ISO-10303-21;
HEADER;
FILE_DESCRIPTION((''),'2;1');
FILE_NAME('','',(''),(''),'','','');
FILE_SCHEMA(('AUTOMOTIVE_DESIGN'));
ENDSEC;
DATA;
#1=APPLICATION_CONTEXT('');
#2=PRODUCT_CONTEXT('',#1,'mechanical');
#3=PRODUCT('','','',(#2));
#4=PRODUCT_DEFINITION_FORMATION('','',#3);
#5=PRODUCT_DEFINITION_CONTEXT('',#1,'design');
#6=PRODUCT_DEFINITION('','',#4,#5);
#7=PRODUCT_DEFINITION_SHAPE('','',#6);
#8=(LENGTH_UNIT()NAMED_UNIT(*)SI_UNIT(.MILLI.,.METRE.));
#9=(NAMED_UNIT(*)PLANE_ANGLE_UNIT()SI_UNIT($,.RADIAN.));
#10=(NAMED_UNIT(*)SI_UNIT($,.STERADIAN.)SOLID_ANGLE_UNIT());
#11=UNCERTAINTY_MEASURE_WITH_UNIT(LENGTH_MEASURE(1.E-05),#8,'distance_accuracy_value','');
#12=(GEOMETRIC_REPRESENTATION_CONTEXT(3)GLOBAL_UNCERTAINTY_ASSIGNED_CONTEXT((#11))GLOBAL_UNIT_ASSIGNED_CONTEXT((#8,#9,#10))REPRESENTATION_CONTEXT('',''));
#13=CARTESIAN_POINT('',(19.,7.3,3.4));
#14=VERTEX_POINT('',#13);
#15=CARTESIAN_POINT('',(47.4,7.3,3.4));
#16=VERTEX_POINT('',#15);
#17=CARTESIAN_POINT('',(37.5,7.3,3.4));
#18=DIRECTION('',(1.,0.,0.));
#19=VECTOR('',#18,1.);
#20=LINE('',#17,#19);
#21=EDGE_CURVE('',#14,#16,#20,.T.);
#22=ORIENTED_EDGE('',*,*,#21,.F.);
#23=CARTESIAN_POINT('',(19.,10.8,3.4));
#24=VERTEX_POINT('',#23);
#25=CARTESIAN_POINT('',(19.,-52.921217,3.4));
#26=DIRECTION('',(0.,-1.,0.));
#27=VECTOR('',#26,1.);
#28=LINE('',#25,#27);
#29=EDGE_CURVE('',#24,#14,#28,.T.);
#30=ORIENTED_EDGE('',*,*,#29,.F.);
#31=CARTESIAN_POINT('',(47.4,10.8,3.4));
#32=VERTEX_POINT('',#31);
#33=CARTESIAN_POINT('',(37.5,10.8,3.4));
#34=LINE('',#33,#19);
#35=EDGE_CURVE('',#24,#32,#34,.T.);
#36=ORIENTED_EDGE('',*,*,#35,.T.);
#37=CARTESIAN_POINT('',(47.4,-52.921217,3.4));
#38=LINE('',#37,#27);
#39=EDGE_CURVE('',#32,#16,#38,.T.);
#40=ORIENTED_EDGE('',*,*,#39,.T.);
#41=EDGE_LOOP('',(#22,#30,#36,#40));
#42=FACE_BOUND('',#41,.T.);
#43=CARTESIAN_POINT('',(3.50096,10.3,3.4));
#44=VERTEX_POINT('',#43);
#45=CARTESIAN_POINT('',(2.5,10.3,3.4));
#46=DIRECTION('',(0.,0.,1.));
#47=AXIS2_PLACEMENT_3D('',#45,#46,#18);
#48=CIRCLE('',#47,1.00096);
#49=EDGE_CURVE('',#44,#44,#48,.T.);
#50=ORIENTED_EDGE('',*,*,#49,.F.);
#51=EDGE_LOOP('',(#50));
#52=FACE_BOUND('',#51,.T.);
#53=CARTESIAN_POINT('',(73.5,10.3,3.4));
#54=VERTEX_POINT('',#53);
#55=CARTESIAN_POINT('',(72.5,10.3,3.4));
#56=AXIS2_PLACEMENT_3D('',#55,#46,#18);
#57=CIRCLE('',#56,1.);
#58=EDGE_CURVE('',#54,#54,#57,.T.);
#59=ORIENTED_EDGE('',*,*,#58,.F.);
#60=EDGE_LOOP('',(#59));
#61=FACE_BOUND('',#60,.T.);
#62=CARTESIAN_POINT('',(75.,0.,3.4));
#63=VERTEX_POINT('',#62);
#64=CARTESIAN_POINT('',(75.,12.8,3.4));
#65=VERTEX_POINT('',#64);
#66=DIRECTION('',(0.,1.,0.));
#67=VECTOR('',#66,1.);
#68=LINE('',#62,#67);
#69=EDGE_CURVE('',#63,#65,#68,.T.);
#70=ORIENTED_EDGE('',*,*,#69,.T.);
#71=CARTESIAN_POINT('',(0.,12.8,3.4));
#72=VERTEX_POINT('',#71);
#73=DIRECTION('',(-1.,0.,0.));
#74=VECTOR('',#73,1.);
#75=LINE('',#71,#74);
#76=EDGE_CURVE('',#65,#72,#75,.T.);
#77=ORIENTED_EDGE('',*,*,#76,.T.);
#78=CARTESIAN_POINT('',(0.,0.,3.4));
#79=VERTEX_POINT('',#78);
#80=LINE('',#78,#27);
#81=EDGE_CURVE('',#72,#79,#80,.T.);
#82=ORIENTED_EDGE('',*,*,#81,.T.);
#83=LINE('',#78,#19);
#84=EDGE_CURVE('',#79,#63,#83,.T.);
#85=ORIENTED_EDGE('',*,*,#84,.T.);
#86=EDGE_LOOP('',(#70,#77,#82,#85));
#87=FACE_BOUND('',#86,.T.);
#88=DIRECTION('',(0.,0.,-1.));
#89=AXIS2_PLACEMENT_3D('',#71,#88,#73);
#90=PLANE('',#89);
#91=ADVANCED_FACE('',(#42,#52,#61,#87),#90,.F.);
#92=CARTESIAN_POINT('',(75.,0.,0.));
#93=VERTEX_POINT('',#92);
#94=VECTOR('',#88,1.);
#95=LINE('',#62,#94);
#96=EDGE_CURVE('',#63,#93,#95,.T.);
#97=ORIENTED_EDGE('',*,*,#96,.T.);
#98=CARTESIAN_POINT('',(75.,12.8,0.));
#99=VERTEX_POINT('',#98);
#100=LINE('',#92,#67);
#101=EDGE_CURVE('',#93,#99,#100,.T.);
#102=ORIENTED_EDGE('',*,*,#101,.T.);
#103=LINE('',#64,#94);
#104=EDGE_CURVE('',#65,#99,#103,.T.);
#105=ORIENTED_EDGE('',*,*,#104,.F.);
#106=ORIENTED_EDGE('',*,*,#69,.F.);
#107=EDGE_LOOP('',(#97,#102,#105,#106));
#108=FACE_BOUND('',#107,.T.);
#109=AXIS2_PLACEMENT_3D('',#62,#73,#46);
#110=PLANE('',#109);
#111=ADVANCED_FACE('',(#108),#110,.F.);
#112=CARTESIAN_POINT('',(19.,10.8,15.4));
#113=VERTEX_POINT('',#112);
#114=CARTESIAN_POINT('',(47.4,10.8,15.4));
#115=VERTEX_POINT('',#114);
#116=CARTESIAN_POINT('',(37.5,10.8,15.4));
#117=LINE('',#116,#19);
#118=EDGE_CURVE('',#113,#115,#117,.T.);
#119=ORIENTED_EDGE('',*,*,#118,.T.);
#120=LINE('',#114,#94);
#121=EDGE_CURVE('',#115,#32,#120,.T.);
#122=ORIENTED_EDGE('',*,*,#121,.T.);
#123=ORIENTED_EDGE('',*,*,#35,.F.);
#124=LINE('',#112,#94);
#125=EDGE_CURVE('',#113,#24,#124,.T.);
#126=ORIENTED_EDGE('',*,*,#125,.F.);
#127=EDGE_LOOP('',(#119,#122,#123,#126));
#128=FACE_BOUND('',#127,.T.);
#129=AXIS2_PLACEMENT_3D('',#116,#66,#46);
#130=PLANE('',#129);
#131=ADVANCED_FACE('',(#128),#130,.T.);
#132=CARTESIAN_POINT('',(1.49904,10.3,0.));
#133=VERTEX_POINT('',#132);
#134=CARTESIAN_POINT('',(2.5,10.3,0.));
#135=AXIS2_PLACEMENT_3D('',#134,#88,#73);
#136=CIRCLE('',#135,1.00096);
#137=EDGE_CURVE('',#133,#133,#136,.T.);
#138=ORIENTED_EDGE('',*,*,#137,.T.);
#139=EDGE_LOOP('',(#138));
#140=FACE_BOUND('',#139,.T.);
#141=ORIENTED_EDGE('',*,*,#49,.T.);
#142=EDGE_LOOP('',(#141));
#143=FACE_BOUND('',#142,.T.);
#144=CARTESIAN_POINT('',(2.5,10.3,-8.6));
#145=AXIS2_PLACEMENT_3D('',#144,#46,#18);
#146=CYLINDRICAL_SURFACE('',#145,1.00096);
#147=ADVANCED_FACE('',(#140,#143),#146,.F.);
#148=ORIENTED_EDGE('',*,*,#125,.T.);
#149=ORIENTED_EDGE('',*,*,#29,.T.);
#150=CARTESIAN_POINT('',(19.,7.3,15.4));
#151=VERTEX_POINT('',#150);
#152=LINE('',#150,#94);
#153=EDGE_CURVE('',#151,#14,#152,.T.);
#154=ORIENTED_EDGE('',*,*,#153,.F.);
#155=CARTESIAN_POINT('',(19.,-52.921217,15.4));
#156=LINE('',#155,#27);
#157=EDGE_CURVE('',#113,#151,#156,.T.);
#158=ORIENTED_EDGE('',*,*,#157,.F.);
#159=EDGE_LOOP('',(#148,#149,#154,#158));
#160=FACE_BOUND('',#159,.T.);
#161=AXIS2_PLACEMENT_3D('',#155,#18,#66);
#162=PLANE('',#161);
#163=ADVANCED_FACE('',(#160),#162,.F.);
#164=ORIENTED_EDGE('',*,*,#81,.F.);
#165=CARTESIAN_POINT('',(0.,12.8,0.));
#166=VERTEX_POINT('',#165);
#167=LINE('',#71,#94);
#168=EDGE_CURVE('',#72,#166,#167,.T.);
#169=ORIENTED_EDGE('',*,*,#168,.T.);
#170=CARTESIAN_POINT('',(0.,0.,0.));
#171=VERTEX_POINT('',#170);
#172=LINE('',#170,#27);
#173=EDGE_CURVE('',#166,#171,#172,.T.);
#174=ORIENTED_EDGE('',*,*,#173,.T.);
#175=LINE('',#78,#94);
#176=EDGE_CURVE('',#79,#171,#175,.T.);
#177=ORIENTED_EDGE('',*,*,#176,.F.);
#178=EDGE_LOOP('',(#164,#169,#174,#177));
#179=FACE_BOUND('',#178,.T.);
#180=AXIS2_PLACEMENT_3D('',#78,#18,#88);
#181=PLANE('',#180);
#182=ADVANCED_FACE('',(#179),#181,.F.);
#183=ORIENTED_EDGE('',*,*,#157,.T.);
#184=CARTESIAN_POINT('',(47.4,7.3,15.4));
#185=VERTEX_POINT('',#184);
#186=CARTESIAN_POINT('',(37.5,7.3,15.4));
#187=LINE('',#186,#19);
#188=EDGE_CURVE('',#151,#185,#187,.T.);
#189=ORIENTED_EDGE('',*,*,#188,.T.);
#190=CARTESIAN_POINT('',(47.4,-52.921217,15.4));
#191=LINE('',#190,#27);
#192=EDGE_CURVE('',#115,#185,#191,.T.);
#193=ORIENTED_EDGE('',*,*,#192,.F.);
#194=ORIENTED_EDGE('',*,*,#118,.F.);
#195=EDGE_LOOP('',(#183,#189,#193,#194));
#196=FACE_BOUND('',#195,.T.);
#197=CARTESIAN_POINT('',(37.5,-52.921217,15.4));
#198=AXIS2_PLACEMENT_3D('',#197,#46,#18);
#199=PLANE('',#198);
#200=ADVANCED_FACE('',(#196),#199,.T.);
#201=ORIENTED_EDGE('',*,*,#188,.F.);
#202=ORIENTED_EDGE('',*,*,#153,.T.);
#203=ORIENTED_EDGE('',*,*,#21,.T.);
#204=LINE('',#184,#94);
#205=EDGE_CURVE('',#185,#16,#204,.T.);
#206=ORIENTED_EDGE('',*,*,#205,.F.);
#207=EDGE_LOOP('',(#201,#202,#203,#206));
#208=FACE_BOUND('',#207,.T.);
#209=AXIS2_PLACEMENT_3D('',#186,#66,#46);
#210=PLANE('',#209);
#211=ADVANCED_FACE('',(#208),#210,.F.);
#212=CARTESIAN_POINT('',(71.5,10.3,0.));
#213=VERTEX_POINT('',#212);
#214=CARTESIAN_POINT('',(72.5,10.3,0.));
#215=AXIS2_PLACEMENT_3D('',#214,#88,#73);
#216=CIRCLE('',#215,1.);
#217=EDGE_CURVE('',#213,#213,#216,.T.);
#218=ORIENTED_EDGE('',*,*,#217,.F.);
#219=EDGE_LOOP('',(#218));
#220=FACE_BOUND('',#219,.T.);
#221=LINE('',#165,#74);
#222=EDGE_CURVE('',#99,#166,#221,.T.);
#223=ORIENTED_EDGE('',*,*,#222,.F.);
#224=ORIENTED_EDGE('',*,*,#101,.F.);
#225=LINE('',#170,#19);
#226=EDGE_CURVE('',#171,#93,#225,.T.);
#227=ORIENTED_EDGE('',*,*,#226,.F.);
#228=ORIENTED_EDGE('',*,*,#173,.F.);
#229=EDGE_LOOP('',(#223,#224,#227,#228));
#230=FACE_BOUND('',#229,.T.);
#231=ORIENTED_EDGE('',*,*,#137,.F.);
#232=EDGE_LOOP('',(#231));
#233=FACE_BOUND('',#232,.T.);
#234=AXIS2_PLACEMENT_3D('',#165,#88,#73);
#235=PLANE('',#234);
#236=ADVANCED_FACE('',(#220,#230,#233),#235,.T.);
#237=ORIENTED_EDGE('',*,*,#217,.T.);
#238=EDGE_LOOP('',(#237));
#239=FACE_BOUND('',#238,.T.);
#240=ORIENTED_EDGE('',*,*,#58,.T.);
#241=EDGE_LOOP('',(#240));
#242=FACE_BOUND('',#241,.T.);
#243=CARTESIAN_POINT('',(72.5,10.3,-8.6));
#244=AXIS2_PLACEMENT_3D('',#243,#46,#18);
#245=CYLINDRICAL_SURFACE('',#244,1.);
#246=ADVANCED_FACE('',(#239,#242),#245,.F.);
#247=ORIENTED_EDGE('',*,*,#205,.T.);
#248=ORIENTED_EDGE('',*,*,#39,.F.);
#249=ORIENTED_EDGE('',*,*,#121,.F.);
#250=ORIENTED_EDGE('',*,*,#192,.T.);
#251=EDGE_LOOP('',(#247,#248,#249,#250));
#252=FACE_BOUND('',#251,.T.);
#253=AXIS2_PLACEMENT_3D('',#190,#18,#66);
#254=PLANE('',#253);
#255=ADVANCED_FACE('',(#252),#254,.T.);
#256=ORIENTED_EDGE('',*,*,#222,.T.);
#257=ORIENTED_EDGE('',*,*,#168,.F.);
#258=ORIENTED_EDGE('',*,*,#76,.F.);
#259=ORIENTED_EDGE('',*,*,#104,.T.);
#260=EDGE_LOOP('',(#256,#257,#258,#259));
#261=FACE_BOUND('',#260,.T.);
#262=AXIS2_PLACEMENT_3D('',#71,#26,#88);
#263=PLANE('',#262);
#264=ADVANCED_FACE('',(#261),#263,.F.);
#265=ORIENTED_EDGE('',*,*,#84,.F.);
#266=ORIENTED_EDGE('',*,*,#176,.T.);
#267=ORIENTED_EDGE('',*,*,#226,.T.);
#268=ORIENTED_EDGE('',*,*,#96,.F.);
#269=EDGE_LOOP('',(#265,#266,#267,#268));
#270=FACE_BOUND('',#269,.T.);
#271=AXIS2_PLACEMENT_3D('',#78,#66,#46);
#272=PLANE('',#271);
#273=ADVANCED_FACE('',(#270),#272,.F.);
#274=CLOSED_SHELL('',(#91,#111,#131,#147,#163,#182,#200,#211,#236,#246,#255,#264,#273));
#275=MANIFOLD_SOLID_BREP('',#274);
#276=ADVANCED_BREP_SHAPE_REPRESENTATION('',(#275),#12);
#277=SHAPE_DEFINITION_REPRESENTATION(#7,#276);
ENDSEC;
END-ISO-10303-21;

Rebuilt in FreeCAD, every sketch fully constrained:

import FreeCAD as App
import Part
import Sketcher

V = App.Vector

doc = App.newDocument("Part")
params = doc.addObject("Spreadsheet::Sheet", "Params")
for row, (alias, value) in enumerate([
    ("sketch1_width", "75 mm"),
    ("sketch1_height", "12.8 mm"),
    ("pad1_length", "3.4 mm"),
    ("sketch2_width", "28.4 mm"),
    ("sketch2_height", "3.5 mm"),
    ("pad2_length", "12 mm"),
    ("sketch3_diameter", "2 mm"),
    ("pocket1_length", "12 mm"),
], start=1):
    params.set(f"A{row}", alias)
    params.set(f"B{row}", "=" + value)
    params.setAlias(f"B{row}", alias)

body = doc.addObject("PartDesign::Body", "Body")

# Sketch on XY plane
sketch1 = body.newObject("Sketcher::SketchObject", "Sketch")
sketch1.AttachmentSupport = (doc.getObject("XY_Plane"), [""])
sketch1.MapMode = "FlatFace"
sketch1.addGeometry(Part.LineSegment(V(0, 12.8, 0), V(0, 0, 0)), False)
sketch1.addGeometry(Part.LineSegment(V(0, 0, 0), V(75, 0, 0)), False)
sketch1.addGeometry(Part.LineSegment(V(75, 0, 0), V(75, 12.8, 0)), False)
sketch1.addGeometry(Part.LineSegment(V(75, 12.8, 0), V(0, 12.8, 0)), False)
sketch1.addConstraint(Sketcher.Constraint("Coincident", 0, 2, 1, 1))
sketch1.addConstraint(Sketcher.Constraint("Coincident", 1, 2, 2, 1))
sketch1.addConstraint(Sketcher.Constraint("Coincident", 2, 2, 3, 1))
sketch1.addConstraint(Sketcher.Constraint("Coincident", 3, 2, 0, 1))
sketch1.addConstraint(Sketcher.Constraint("Vertical", 0))
sketch1.addConstraint(Sketcher.Constraint("Horizontal", 1))
sketch1.addConstraint(Sketcher.Constraint("Vertical", 2))
sketch1.addConstraint(Sketcher.Constraint("Horizontal", 3))
sketch1.addConstraint(Sketcher.Constraint("Coincident", 0, 2, -1, 1))
sketch1.addConstraint(Sketcher.Constraint("DistanceX", 1, 1, 1, 2, 75.0))
sketch1.addConstraint(Sketcher.Constraint("DistanceY", 0, 2, 0, 1, 12.8))
sketch1.setExpression("Constraints[9]", "Params.sketch1_width")
sketch1.setExpression("Constraints[10]", "Params.sketch1_height")
pad1 = body.newObject("PartDesign::Pad", "Pad")
pad1.Profile = sketch1
pad1.setExpression("Length", "Params.pad1_length")

# Sketch on XY plane
sketch2 = body.newObject("Sketcher::SketchObject", "Sketch001")
sketch2.AttachmentSupport = (doc.getObject("XY_Plane"), [""])
sketch2.MapMode = "FlatFace"
sketch2.AttachmentOffset = App.Placement(V(0, 0, 3.4), App.Rotation())
sketch2.addGeometry(Part.LineSegment(V(19, 10.8, 0), V(19, 7.3, 0)), False)
sketch2.addGeometry(Part.LineSegment(V(19, 7.3, 0), V(47.4, 7.3, 0)), False)
sketch2.addGeometry(Part.LineSegment(V(47.4, 7.3, 0), V(47.4, 10.8, 0)), False)
sketch2.addGeometry(Part.LineSegment(V(47.4, 10.8, 0), V(19, 10.8, 0)), False)
sketch2.addConstraint(Sketcher.Constraint("Coincident", 0, 2, 1, 1))
sketch2.addConstraint(Sketcher.Constraint("Coincident", 1, 2, 2, 1))
sketch2.addConstraint(Sketcher.Constraint("Coincident", 2, 2, 3, 1))
sketch2.addConstraint(Sketcher.Constraint("Coincident", 3, 2, 0, 1))
sketch2.addConstraint(Sketcher.Constraint("Vertical", 0))
sketch2.addConstraint(Sketcher.Constraint("Horizontal", 1))
sketch2.addConstraint(Sketcher.Constraint("Vertical", 2))
sketch2.addConstraint(Sketcher.Constraint("Horizontal", 3))
sketch2.addConstraint(Sketcher.Constraint("DistanceX", 1, 1, 1, 2, 28.4))
sketch2.addConstraint(Sketcher.Constraint("DistanceY", 0, 2, 0, 1, 3.5))
sketch2.addConstraint(Sketcher.Constraint("DistanceX", -1, 1, 0, 2, 19.0))
sketch2.addConstraint(Sketcher.Constraint("DistanceY", -1, 1, 0, 2, 7.3))
sketch2.setExpression("Constraints[8]", "Params.sketch2_width")
sketch2.setExpression("Constraints[9]", "Params.sketch2_height")
pad2 = body.newObject("PartDesign::Pad", "Pad001")
pad2.Profile = sketch2
pad2.setExpression("Length", "Params.pad2_length")

# Sketch on XY plane
sketch3 = body.newObject("Sketcher::SketchObject", "Sketch002")
sketch3.AttachmentSupport = (doc.getObject("XY_Plane"), [""])
sketch3.MapMode = "FlatFace"
sketch3.AttachmentOffset = App.Placement(V(0, 0, 3.4), App.Rotation())
sketch3.addGeometry(Part.Circle(V(72.5, 10.3, 0), V(0, 0, 1), 1), False)
sketch3.addGeometry(Part.Circle(V(2.5, 10.3, 0), V(0, 0, 1), 1.00096), False)
sketch3.addConstraint(Sketcher.Constraint("Horizontal", 0, 3, 1, 3))
sketch3.addConstraint(Sketcher.Constraint("Diameter", 0, 2.0))
sketch3.addConstraint(Sketcher.Constraint("DistanceX", 1, 3, 0, 3, 70.0))
sketch3.addConstraint(Sketcher.Constraint("DistanceX", -1, 1, 0, 3, 72.5))
sketch3.addConstraint(Sketcher.Constraint("DistanceY", -1, 1, 0, 3, 10.3))
sketch3.addConstraint(Sketcher.Constraint("Diameter", 1, 2.001919))
sketch3.setExpression("Constraints[1]", "Params.sketch3_diameter")
pocket1 = body.newObject("PartDesign::Pocket", "Pocket")
pocket1.Profile = sketch3
pocket1.setExpression("Length", "Params.pocket1_length")

doc.recompute()
